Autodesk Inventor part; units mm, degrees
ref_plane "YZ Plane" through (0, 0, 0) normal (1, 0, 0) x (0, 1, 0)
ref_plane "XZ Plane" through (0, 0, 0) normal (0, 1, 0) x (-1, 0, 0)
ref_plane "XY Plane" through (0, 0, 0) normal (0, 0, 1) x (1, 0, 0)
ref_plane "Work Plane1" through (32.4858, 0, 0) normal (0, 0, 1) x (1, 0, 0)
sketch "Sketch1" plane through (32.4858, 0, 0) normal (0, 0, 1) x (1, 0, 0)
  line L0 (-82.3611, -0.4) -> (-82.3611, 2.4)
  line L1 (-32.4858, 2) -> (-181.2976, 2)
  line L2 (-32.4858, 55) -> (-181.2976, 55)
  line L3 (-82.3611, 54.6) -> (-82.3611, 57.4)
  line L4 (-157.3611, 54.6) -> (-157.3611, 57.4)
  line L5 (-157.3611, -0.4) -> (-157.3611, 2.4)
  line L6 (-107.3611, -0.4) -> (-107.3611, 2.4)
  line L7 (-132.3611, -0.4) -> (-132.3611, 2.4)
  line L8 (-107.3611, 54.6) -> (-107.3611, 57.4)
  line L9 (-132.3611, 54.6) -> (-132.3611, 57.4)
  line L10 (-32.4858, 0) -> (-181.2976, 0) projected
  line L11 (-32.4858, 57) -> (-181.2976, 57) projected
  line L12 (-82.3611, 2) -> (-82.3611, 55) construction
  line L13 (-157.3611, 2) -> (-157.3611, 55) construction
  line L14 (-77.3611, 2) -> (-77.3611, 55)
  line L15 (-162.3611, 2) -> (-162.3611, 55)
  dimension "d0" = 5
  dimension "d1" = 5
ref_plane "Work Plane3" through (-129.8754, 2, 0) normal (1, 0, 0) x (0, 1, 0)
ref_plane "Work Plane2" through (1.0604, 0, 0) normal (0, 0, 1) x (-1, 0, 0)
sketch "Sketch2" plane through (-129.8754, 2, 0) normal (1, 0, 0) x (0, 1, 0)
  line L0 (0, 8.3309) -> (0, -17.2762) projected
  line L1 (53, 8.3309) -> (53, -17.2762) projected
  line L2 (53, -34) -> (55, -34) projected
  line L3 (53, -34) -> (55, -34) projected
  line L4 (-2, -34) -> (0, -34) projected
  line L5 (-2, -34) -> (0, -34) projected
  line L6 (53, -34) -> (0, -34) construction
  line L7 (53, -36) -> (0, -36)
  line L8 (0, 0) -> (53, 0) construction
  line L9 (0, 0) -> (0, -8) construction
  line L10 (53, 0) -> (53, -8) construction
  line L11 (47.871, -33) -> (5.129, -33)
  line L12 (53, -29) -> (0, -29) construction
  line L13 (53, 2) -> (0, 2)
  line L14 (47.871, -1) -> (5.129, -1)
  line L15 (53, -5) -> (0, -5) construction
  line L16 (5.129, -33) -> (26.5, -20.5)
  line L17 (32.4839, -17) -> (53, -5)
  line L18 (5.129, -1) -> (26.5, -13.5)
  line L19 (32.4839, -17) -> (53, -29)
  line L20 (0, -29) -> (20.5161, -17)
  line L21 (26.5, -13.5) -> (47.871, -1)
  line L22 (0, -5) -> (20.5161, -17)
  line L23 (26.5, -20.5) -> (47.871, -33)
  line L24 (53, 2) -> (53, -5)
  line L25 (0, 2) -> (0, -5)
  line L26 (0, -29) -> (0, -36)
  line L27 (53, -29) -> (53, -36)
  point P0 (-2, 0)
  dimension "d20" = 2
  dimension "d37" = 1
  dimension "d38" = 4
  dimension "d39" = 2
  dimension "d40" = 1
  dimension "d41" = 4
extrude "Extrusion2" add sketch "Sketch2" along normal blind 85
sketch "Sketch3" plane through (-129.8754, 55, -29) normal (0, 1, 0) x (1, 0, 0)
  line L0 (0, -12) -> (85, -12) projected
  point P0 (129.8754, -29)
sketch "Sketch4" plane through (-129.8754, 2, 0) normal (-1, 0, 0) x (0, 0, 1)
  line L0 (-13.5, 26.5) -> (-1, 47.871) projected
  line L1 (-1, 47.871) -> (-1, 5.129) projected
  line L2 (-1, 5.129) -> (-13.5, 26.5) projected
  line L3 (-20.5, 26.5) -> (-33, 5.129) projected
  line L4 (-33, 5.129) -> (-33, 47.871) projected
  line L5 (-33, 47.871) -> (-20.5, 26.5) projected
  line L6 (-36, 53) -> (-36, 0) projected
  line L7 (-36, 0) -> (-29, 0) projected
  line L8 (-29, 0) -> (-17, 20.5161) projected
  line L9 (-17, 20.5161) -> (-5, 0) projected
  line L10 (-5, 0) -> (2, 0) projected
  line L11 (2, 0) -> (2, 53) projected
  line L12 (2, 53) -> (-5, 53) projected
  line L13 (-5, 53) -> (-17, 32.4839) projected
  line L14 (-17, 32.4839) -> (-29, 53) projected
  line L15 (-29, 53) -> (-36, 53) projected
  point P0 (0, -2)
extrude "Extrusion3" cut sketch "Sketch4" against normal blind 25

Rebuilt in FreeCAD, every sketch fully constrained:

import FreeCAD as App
import Part
import Sketcher
Q = App.Units.Quantity

doc = App.newDocument("Part")
body = doc.addObject("PartDesign::Body", "Body")

# Sketch on YZ plane
sketch1 = body.newObject("Sketcher::SketchObject", "Sketch")
sketch1.AttachmentSupport = (doc.getObject("YZ_Plane"), [""])
sketch1.MapMode = "FlatFace"
sketch1.AttachmentOffset = App.Placement(App.Vector(0, 0, -129.8754), App.Rotation())
sketch1.addGeometry([
    Part.LineSegment(App.Vector(55, 2, 0), App.Vector(2, 2, 0)),  # 0
    Part.LineSegment(App.Vector(2, 2, 0), App.Vector(2, -5, 0)),  # 1
    Part.LineSegment(App.Vector(2, -5, 0), App.Vector(23, -17, 0)),  # 2
    Part.LineSegment(App.Vector(23, -17, 0), App.Vector(2, -29, 0)),  # 3
    Part.LineSegment(App.Vector(2, -29, 0), App.Vector(2, -36, 0)),  # 4
    Part.LineSegment(App.Vector(2, -36, 0), App.Vector(55, -36, 0)),  # 5
    Part.LineSegment(App.Vector(55, -36, 0), App.Vector(55, -29, 0)),  # 6
    Part.LineSegment(App.Vector(55, -29, 0), App.Vector(34, -17, 0)),  # 7
    Part.LineSegment(App.Vector(34, -17, 0), App.Vector(55, -5, 0)),  # 8
    Part.LineSegment(App.Vector(55, -5, 0), App.Vector(55, 2, 0)),  # 9
    Part.LineSegment(App.Vector(28, -20, 0), App.Vector(50, -33, 0)),  # 10
    Part.LineSegment(App.Vector(50, -33, 0), App.Vector(7, -33, 0)),  # 11
    Part.LineSegment(App.Vector(7, -33, 0), App.Vector(28, -20, 0)),  # 12
    Part.LineSegment(App.Vector(7, -1, 0), App.Vector(50, -1, 0)),  # 13
    Part.LineSegment(App.Vector(50, -1, 0), App.Vector(28, -14, 0)),  # 14
    Part.LineSegment(App.Vector(28, -14, 0), App.Vector(7, -1, 0)),  # 15
], False)
sketch1.addConstraint([
    Sketcher.Constraint("Coincident", 0, 2, 1, 1),
    Sketcher.Constraint("Coincident", 1, 2, 2, 1),
    Sketcher.Constraint("Coincident", 2, 2, 3, 1),
    Sketcher.Constraint("Coincident", 3, 2, 4, 1),
    Sketcher.Constraint("Coincident", 4, 2, 5, 1),
    Sketcher.Constraint("Coincident", 5, 2, 6, 1),
    Sketcher.Constraint("Coincident", 6, 2, 7, 1),
    Sketcher.Constraint("Coincident", 7, 2, 8, 1),
    Sketcher.Constraint("Coincident", 8, 2, 9, 1),
    Sketcher.Constraint("Coincident", 9, 2, 0, 1),
    Sketcher.Constraint("Coincident", 10, 2, 11, 1),
    Sketcher.Constraint("Coincident", 11, 2, 12, 1),
    Sketcher.Constraint("Coincident", 12, 2, 10, 1),
    Sketcher.Constraint("Coincident", 13, 2, 14, 1),
    Sketcher.Constraint("Coincident", 14, 2, 15, 1),
    Sketcher.Constraint("Coincident", 15, 2, 13, 1),
    Sketcher.Constraint("Horizontal", 0),
    Sketcher.Constraint("Vertical", 1),
    Sketcher.Constraint("Vertical", 4),
    Sketcher.Constraint("Horizontal", 5),
    Sketcher.Constraint("Vertical", 6),
    Sketcher.Constraint("Vertical", 9),
    Sketcher.Constraint("Horizontal", 11),
    Sketcher.Constraint("Horizontal", 13),
    Sketcher.Constraint("Parallel", 2, 7),
    Sketcher.Constraint("Parallel", 3, 8),
    Sketcher.Constraint("Parallel", 7, 10),
    Sketcher.Constraint("Parallel", 8, 12),
    Sketcher.Constraint("Parallel", 12, 14),
    Sketcher.Constraint("Parallel", 10, 15),
    Sketcher.Constraint("Horizontal", 3, 2, 6, 2),
    Sketcher.Constraint("Horizontal", 2, 2, 7, 2),
    Sketcher.Constraint("Horizontal", 1, 2, 8, 2),
    Sketcher.Constraint("Vertical", 1, 2, 3, 2),
    Sketcher.Constraint("Vertical", 6, 2, 8, 2),
    Sketcher.Constraint("Vertical", 10, 2, 13, 2),
    Sketcher.Constraint("Vertical", 12, 2, 14, 2),
    Sketcher.Constraint("Equal", 1, 4),
    Sketcher.Constraint("DistanceX", -1, 1, 0, 2, Q("2 mm")),
    Sketcher.Constraint("DistanceY", -1, 1, 0, 2, Q("2 mm")),
    Sketcher.Constraint("DistanceY", 13, 2, -1, 1, Q("1 mm")),
    Sketcher.Constraint("DistanceY", 10, 2, 6, 2, Q("4 mm")),
    Sketcher.Constraint("DistanceY", 8, 2, 13, 2, Q("4 mm")),
    Sketcher.Constraint("DistanceX", 0, 2, 0, 1, Q("53 mm")),
    Sketcher.Constraint("DistanceY", 2, 2, -1, 1, Q("17 mm")),
    Sketcher.Constraint("DistanceY", 12, 2, 14, 2, Q("7 mm")),
    Sketcher.Constraint("DistanceX", -1, 1, 12, 2, Q("28.5 mm")),
    Sketcher.Constraint("DistanceX", 11, 2, 11, 1, Q("42.742 mm")),
])
pad1 = body.newObject("PartDesign::Pad", "Pad")
pad1.Profile = sketch1
pad1.Length = 85

# Sketch on YZ plane
sketch2 = body.newObject("Sketcher::SketchObject", "Sketch001")
sketch2.AttachmentSupport = (doc.getObject("YZ_Plane"), [""])
sketch2.MapMode = "FlatFace"
sketch2.AttachmentOffset = App.Placement(App.Vector(0, 0, -129.8754), App.Rotation())
sketch2.addGeometry([
    Part.LineSegment(App.Vector(55, -29, 0), App.Vector(55, -36, 0)),  # 0
    Part.LineSegment(App.Vector(55, -36, 0), App.Vector(2, -36, 0)),  # 1
    Part.LineSegment(App.Vector(2, -36, 0), App.Vector(2, -29, 0)),  # 2
    Part.LineSegment(App.Vector(2, -29, 0), App.Vector(23, -17, 0)),  # 3
    Part.LineSegment(App.Vector(23, -17, 0), App.Vector(2, -5, 0)),  # 4
    Part.LineSegment(App.Vector(2, -5, 0), App.Vector(2, 2, 0)),  # 5
    Part.LineSegment(App.Vector(2, 2, 0), App.Vector(55, 2, 0)),  # 6
    Part.LineSegment(App.Vector(55, 2, 0), App.Vector(55, -5, 0)),  # 7
    Part.LineSegment(App.Vector(55, -5, 0), App.Vector(34, -17, 0)),  # 8
    Part.LineSegment(App.Vector(34, -17, 0), App.Vector(55, -29, 0)),  # 9
    Part.LineSegment(App.Vector(50, -33, 0), App.Vector(28, -20, 0)),  # 10
    Part.LineSegment(App.Vector(28, -20, 0), App.Vector(7, -33, 0)),  # 11
    Part.LineSegment(App.Vector(7, -33, 0), App.Vector(50, -33, 0)),  # 12
    Part.LineSegment(App.Vector(7, -1, 0), App.Vector(28, -14, 0)),  # 13
    Part.LineSegment(App.Vector(28, -14, 0), App.Vector(50, -1, 0)),  # 14
    Part.LineSegment(App.Vector(50, -1, 0), App.Vector(7, -1, 0)),  # 15
], False)
sketch2.addConstraint([
    Sketcher.Constraint("Coincident", 0, 2, 1, 1),
    Sketcher.Constraint("Coincident", 1, 2, 2, 1),
    Sketcher.Constraint("Coincident", 2, 2, 3, 1),
    Sketcher.Constraint("Coincident", 3, 2, 4, 1),
    Sketcher.Constraint("Coincident", 4, 2, 5, 1),
    Sketcher.Constraint("Coincident", 5, 2, 6, 1),
    Sketcher.Constraint("Coincident", 6, 2, 7, 1),
    Sketcher.Constraint("Coincident", 7, 2, 8, 1),
    Sketcher.Constraint("Coincident", 8, 2, 9, 1),
    Sketcher.Constraint("Coincident", 9, 2, 0, 1),
    Sketcher.Constraint("Coincident", 10, 2, 11, 1),
    Sketcher.Constraint("Coincident", 11, 2, 12, 1),
    Sketcher.Constraint("Coincident", 12, 2, 10, 1),
    Sketcher.Constraint("Coincident", 13, 2, 14, 1),
    Sketcher.Constraint("Coincident", 14, 2, 15, 1),
    Sketcher.Constraint("Coincident", 15, 2, 13, 1),
    Sketcher.Constraint("Vertical", 0),
    Sketcher.Constraint("Horizontal", 1),
    Sketcher.Constraint("Vertical", 2),
    Sketcher.Constraint("Vertical", 5),
    Sketcher.Constraint("Horizontal", 6),
    Sketcher.Constraint("Vertical", 7),
    Sketcher.Constraint("Horizontal", 12),
    Sketcher.Constraint("Horizontal", 15),
    Sketcher.Constraint("Parallel", 3, 8),
    Sketcher.Constraint("Parallel", 4, 9),
    Sketcher.Constraint("Parallel", 9, 10),
    Sketcher.Constraint("Parallel", 8, 11),
    Sketcher.Constraint("Parallel", 10, 13),
    Sketcher.Constraint("Parallel", 11, 14),
    Sketcher.Constraint("Horizontal", 4, 2, 7, 2),
    Sketcher.Constraint("Horizontal", 3, 2, 8, 2),
    Sketcher.Constraint("Horizontal", 2, 2, 9, 2),
    Sketcher.Constraint("Vertical", 2, 2, 4, 2),
    Sketcher.Constraint("Vertical", 0, 2, 6, 2),
    Sketcher.Constraint("Vertical", 10, 2, 13, 2),
    Sketcher.Constraint("Vertical", 12, 2, 14, 2),
    Sketcher.Constraint("Equal", 2, 5),
    Sketcher.Constraint("DistanceX", 1, 2, 1, 1, Q("53 mm")),
    Sketcher.Constraint("DistanceY", 0, 2, 0, 1, Q("7 mm")),
    Sketcher.Constraint("DistanceX", -1, 1, 0, 2, Q("55 mm")),
    Sketcher.Constraint("DistanceY", 0, 2, -1, 1, Q("36 mm")),
    Sketcher.Constraint("DistanceY", 3, 2, -1, 1, Q("17 mm")),
    Sketcher.Constraint("DistanceY", 11, 2, -1, 1, Q("33 mm")),
    Sketcher.Constraint("DistanceY", 14, 2, -1, 1, Q("1 mm")),
    Sketcher.Constraint("DistanceY", 10, 2, 13, 2, Q("7 mm")),
    Sketcher.Constraint("DistanceX", -1, 1, 10, 2, Q("28.5 mm")),
    Sketcher.Constraint("DistanceX", 12, 1, 12, 2, Q("42.742 mm")),
])
pocket1 = body.newObject("PartDesign::Pocket", "Pocket")
pocket1.Profile = sketch2
pocket1.Length = 25
pocket1.Reversed = True

doc.recompute()
